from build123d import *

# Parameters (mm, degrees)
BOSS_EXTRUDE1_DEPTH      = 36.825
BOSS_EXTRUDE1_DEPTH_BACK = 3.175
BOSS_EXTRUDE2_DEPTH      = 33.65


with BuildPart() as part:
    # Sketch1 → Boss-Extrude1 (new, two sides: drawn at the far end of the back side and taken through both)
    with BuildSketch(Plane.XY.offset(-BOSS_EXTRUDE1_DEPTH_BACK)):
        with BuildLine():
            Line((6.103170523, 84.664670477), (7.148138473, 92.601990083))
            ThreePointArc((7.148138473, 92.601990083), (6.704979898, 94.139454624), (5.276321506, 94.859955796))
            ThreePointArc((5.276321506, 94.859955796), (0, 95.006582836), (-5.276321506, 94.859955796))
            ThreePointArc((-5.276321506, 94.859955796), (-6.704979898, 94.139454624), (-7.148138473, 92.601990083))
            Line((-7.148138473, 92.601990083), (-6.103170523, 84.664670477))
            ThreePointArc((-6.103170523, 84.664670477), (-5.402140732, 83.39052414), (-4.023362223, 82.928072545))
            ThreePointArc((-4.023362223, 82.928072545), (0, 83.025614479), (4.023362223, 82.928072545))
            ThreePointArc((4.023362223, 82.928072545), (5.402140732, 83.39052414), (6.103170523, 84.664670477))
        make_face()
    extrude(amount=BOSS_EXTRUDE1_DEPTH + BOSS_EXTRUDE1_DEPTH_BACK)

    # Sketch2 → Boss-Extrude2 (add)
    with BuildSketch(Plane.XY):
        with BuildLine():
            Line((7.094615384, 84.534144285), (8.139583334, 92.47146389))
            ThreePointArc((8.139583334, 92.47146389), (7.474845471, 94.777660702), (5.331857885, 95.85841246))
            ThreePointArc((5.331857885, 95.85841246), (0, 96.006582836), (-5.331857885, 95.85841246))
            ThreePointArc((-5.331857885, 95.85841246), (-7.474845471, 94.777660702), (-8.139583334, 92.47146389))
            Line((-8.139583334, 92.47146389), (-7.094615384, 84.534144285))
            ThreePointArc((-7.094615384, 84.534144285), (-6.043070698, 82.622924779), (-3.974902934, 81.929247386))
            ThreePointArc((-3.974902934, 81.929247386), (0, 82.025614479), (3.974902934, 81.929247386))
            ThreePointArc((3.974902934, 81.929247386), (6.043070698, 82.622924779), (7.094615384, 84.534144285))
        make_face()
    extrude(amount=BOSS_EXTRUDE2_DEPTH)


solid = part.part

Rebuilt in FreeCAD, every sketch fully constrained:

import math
import FreeCAD as App
import Part
import Sketcher
from FreeCAD import Vector
Q = App.Units.Quantity

doc = App.newDocument("Part")
params = doc.addObject("Spreadsheet::Sheet", "Params")
for row, (alias, value) in enumerate([
    ("sketch1_radius", "2 mm"),
    ("pad1_length", "36.825 mm"),
    ("pad1_length2", "3.175 mm"),
    ("sketch2_radius", "3 mm"),
    ("pad2_length", "33.65 mm"),
], start=1):
    params.set(f"A{row}", alias)
    params.set(f"B{row}", "=" + value)
    params.setAlias(f"B{row}", alias)

body = doc.addObject("PartDesign::Body", "Body")

# Sketch on XY plane
sketch1 = body.newObject("Sketcher::SketchObject", "Sketch")
sketch1.AttachmentSupport = (doc.getObject("XY_Plane"), [""])
sketch1.MapMode = "FlatFace"
sketch1.addGeometry(Part.LineSegment(Vector(6.1, 84.7, 0), Vector(7.1, 92.6, 0)), False)
sketch1.addGeometry(Part.ArcOfCircle(Part.Circle(Vector(5.2, 92.9, 0), Vector(0, 0, 1), 2), math.radians(-8), math.radians(87)), False)
sketch1.addGeometry(Part.ArcOfCircle(Part.Circle(Vector(0, 0, 0), Vector(0, 0, 1), 95), math.radians(86.82), math.radians(93.18)), False)
sketch1.addGeometry(Part.ArcOfCircle(Part.Circle(Vector(-5.2, 92.9, 0), Vector(0, 0, 1), 2), math.radians(93), math.radians(188)), False)
sketch1.addGeometry(Part.LineSegment(Vector(-7.1, 92.6, 0), Vector(-6.1, 84.7, 0)), False)
sketch1.addGeometry(Part.ArcOfCircle(Part.Circle(Vector(-4.1, 84.9, 0), Vector(0, 0, 1), 2), math.radians(-172), math.radians(-87)), False)
sketch1.addGeometry(Part.ArcOfCircle(Part.Circle(Vector(0, 0, 0), Vector(0, 0, 1), 83), math.radians(87.22), math.radians(92.78)), False)
sketch1.addGeometry(Part.ArcOfCircle(Part.Circle(Vector(4.1, 84.9, 0), Vector(0, 0, 1), 2), math.radians(-93), math.radians(-8)), False)
sketch1.addConstraint(Sketcher.Constraint("Tangent", 0, 2, 1, 1))
sketch1.addConstraint(Sketcher.Constraint("Tangent", 1, 2, 2, 1))
sketch1.addConstraint(Sketcher.Constraint("Tangent", 2, 2, 3, 1))
sketch1.addConstraint(Sketcher.Constraint("Tangent", 3, 2, 4, 1))
sketch1.addConstraint(Sketcher.Constraint("Tangent", 4, 2, 5, 1))
sketch1.addConstraint(Sketcher.Constraint("Tangent", 5, 2, 6, 2))
sketch1.addConstraint(Sketcher.Constraint("Tangent", 6, 1, 7, 1))
sketch1.addConstraint(Sketcher.Constraint("Tangent", 7, 2, 0, 1))
sketch1.addConstraint(Sketcher.Constraint("Coincident", 2, 3, -1, 1))
sketch1.addConstraint(Sketcher.Constraint("Coincident", 6, 3, -1, 1))
sketch1.addConstraint(Sketcher.Constraint("Equal", 1, 3))
sketch1.addConstraint(Sketcher.Constraint("Equal", 3, 5))
sketch1.addConstraint(Sketcher.Constraint("Equal", 5, 7))
sketch1.addConstraint(Sketcher.Constraint("Symmetric", 0, 2, 3, 2, -2))
sketch1.addConstraint(Sketcher.Constraint("Radius", 1, Q("2 mm")))
sketch1.addConstraint(Sketcher.Constraint("Angle", 0, Q("82.5 deg")))
sketch1.addConstraint(Sketcher.Constraint("Radius", 2, Q("95.006583 mm")))
sketch1.addConstraint(Sketcher.Constraint("Radius", 6, Q("83.025614 mm")))
sketch1.addConstraint(Sketcher.Constraint("DistanceX", -1, 1, 1, 3, Q("5.165249 mm")))
sketch1.setExpression("Constraints[14]", "Params.sketch1_radius")
pad1 = body.newObject("PartDesign::Pad", "Pad")
pad1.Profile = sketch1
pad1.Type = "TwoLengths"
pad1.setExpression("Length", "Params.pad1_length")
pad1.setExpression("Length2", "Params.pad1_length2")

# Sketch on XY plane
sketch2 = body.newObject("Sketcher::SketchObject", "Sketch001")
sketch2.AttachmentSupport = (doc.getObject("XY_Plane"), [""])
sketch2.MapMode = "FlatFace"
sketch2.addGeometry(Part.LineSegment(Vector(7.1, 84.5, 0), Vector(8.1, 92.5, 0)), False)
sketch2.addGeometry(Part.ArcOfCircle(Part.Circle(Vector(5.2, 92.9, 0), Vector(0, 0, 1), 3), math.radians(-8), math.radians(87)), False)
sketch2.addGeometry(Part.ArcOfCircle(Part.Circle(Vector(0, 0, 0), Vector(0, 0, 1), 96), math.radians(86.82), math.radians(93.18)), False)
sketch2.addGeometry(Part.ArcOfCircle(Part.Circle(Vector(-5.2, 92.9, 0), Vector(0, 0, 1), 3), math.radians(93), math.radians(188)), False)
sketch2.addGeometry(Part.LineSegment(Vector(-8.1, 92.5, 0), Vector(-7.1, 84.5, 0)), False)
sketch2.addGeometry(Part.ArcOfCircle(Part.Circle(Vector(-4.1, 84.9, 0), Vector(0, 0, 1), 3), math.radians(-173), math.radians(-87)), False)
sketch2.addGeometry(Part.ArcOfCircle(Part.Circle(Vector(0, 0, 0), Vector(0, 0, 1), 82), math.radians(87.22), math.radians(92.78)), False)
sketch2.addGeometry(Part.ArcOfCircle(Part.Circle(Vector(4.1, 84.9, 0), Vector(0, 0, 1), 3), math.radians(-93), math.radians(-7)), False)
sketch2.addConstraint(Sketcher.Constraint("Tangent", 0, 2, 1, 1))
sketch2.addConstraint(Sketcher.Constraint("Tangent", 1, 2, 2, 1))
sketch2.addConstraint(Sketcher.Constraint("Tangent", 2, 2, 3, 1))
sketch2.addConstraint(Sketcher.Constraint("Tangent", 3, 2, 4, 1))
sketch2.addConstraint(Sketcher.Constraint("Tangent", 4, 2, 5, 1))
sketch2.addConstraint(Sketcher.Constraint("Tangent", 5, 2, 6, 2))
sketch2.addConstraint(Sketcher.Constraint("Tangent", 6, 1, 7, 1))
sketch2.addConstraint(Sketcher.Constraint("Tangent", 7, 2, 0, 1))
sketch2.addConstraint(Sketcher.Constraint("Coincident", 2, 3, -1, 1))
sketch2.addConstraint(Sketcher.Constraint("Coincident", 6, 3, -1, 1))
sketch2.addConstraint(Sketcher.Constraint("Equal", 1, 3))
sketch2.addConstraint(Sketcher.Constraint("Equal", 3, 5))
sketch2.addConstraint(Sketcher.Constraint("Equal", 5, 7))
sketch2.addConstraint(Sketcher.Constraint("Symmetric", 0, 2, 3, 2, -2))
sketch2.addConstraint(Sketcher.Constraint("Radius", 1, Q("3 mm")))
sketch2.addConstraint(Sketcher.Constraint("Angle", 0, Q("82.5 deg")))
sketch2.addConstraint(Sketcher.Constraint("Radius", 2, Q("96.006583 mm")))
sketch2.addConstraint(Sketcher.Constraint("Radius", 6, Q("82.025614 mm")))
sketch2.addConstraint(Sketcher.Constraint("DistanceX", -1, 1, 1, 3, Q("5.165249 mm")))
sketch2.setExpression("Constraints[14]", "Params.sketch2_radius")
pad2 = body.newObject("PartDesign::Pad", "Pad001")
pad2.Profile = sketch2
pad2.setExpression("Length", "Params.pad2_length")

doc.recompute()
